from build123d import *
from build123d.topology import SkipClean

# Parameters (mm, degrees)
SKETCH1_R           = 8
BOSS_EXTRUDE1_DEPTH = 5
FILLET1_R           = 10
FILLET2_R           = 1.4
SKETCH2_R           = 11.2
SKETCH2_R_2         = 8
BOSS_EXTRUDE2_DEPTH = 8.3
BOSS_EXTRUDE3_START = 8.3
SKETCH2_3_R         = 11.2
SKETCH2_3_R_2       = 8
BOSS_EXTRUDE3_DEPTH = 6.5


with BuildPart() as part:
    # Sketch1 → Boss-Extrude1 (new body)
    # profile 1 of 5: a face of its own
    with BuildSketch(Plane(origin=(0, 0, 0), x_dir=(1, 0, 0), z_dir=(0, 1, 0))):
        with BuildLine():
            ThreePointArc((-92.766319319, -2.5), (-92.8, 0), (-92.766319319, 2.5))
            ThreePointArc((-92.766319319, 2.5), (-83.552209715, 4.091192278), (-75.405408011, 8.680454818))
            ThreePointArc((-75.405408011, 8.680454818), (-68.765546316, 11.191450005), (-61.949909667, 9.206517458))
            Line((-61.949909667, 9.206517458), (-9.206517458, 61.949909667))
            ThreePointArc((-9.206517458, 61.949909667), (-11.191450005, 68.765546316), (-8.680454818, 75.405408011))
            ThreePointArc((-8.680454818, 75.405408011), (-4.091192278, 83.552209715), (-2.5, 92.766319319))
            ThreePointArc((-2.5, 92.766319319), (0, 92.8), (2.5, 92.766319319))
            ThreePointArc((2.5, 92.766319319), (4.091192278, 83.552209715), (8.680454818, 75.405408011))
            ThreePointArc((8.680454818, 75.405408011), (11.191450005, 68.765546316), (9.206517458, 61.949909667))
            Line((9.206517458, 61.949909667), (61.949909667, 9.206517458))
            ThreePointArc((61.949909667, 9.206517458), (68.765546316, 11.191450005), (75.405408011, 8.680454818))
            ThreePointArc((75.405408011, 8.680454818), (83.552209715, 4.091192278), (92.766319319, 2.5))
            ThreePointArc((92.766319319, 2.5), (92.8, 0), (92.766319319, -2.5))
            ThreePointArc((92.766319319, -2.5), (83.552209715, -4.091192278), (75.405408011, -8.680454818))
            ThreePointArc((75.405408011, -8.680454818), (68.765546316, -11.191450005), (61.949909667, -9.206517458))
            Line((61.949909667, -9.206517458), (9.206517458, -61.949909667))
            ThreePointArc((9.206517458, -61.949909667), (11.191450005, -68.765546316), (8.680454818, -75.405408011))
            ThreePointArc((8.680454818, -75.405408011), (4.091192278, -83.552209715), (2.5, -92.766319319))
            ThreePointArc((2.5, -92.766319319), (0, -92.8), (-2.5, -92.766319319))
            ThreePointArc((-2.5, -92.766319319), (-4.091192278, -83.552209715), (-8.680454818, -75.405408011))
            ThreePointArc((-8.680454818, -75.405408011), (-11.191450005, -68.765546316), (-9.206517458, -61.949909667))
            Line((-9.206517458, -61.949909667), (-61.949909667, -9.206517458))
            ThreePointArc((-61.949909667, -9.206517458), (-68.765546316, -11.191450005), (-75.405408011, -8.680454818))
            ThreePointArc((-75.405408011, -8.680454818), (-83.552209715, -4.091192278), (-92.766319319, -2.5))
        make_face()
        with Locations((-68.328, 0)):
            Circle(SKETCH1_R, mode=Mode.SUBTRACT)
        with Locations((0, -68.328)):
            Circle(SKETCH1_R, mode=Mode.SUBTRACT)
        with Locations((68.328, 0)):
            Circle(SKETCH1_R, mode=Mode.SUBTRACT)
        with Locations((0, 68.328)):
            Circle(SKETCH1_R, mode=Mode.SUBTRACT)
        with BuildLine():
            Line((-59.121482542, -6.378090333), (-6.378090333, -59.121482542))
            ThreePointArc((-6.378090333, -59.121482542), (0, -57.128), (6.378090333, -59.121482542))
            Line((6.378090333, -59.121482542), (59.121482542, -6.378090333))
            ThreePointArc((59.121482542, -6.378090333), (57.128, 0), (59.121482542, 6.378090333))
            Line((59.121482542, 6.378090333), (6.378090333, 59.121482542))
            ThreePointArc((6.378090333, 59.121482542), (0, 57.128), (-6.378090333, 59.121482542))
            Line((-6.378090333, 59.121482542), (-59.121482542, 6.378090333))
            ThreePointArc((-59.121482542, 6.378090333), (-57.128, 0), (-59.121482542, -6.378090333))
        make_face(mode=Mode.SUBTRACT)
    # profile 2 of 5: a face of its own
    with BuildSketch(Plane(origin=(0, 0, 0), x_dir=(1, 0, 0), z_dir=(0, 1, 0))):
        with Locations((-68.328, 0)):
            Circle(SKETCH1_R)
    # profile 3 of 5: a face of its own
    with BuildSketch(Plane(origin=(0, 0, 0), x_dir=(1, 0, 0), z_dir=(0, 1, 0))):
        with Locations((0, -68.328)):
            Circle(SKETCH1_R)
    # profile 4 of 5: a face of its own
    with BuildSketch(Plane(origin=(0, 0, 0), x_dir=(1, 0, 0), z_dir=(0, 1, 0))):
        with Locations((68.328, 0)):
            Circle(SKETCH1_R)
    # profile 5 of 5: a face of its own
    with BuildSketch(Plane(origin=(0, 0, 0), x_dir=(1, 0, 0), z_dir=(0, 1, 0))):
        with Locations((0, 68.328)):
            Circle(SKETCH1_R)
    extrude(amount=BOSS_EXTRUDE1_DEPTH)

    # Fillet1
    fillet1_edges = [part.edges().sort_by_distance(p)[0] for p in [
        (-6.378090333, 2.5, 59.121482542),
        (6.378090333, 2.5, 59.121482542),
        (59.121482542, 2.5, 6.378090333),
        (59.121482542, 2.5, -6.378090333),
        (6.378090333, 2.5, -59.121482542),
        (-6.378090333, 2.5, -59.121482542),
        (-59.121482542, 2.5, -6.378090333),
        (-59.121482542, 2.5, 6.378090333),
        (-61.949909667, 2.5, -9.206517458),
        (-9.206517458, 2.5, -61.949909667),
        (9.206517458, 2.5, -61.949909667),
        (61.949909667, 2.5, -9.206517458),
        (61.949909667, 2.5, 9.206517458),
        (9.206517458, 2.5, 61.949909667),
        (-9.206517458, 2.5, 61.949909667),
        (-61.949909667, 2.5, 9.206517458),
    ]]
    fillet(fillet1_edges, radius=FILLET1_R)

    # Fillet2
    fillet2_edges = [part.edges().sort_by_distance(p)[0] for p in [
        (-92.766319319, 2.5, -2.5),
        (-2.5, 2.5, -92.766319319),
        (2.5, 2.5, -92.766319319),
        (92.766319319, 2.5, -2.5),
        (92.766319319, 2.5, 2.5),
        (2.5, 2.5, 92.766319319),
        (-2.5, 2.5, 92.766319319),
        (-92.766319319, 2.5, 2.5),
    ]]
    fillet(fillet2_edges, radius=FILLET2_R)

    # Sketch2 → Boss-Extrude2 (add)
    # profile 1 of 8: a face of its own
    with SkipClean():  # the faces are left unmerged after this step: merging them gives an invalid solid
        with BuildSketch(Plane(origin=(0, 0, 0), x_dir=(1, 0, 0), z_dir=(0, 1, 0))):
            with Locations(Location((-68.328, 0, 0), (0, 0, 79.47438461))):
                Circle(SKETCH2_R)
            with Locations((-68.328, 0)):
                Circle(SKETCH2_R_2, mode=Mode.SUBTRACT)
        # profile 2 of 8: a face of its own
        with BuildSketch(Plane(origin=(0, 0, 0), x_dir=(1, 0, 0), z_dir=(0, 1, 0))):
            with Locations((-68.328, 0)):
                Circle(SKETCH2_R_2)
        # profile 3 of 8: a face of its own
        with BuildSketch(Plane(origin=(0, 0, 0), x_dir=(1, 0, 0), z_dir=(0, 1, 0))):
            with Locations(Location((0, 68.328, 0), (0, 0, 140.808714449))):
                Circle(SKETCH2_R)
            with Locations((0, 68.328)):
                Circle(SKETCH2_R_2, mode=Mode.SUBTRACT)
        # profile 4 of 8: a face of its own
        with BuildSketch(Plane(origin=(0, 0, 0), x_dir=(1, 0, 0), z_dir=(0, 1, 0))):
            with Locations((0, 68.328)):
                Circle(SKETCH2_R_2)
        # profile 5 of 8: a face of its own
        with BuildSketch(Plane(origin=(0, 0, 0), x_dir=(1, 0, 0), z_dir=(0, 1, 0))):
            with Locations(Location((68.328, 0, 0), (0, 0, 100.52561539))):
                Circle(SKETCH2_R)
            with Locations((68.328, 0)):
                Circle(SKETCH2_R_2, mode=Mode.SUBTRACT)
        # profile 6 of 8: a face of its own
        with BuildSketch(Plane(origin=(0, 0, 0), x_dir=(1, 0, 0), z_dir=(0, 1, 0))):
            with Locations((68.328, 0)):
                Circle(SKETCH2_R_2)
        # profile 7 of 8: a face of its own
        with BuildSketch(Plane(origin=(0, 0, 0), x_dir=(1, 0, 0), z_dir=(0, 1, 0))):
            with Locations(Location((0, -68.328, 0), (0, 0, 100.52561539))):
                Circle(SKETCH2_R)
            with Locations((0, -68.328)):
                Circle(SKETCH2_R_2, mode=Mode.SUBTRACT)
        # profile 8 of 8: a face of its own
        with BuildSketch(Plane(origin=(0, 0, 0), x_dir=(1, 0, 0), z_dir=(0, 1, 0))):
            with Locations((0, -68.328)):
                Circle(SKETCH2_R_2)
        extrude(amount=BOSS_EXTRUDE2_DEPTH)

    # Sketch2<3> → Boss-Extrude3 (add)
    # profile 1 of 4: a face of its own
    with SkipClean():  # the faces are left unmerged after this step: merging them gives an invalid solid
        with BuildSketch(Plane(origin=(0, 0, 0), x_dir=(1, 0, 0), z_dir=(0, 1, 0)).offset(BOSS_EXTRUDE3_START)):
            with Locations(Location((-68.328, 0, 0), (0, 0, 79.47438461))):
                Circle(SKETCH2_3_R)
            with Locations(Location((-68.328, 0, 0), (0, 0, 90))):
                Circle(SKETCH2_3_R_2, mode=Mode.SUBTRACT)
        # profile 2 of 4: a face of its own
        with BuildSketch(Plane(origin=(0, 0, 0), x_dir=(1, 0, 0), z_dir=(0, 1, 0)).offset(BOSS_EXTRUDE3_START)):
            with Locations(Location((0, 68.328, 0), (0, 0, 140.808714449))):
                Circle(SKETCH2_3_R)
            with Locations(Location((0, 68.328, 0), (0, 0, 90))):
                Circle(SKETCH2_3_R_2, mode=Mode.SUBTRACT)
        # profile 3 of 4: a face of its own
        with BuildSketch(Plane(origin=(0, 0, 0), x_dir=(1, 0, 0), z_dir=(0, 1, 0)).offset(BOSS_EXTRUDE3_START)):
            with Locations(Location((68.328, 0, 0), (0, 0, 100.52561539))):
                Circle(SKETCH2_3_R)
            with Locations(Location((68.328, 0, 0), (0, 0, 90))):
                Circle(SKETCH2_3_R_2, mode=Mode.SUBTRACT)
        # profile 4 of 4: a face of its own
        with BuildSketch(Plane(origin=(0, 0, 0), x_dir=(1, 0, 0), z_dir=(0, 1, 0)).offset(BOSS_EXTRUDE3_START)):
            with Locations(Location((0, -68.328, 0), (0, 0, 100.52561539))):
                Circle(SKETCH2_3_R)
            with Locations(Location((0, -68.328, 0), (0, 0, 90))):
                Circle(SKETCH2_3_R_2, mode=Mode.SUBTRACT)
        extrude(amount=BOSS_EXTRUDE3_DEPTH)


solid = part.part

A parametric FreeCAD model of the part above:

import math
import FreeCAD as App
import Part
import Sketcher
from FreeCAD import Vector


def edges_at(feature, points):
    """Names of the edges that pass closest to the given points."""
    edges = feature.Shape.Edges
    near = lambda p: min(range(len(edges)), key=lambda i: edges[i].distToShape(Part.Vertex(*p))[0])
    return sorted({f"Edge{near(p) + 1}" for p in points})

doc = App.newDocument("Part")
body = doc.addObject("PartDesign::Body", "Body")

sketch1 = body.newObject("Sketcher::SketchObject", "Sketch")
sketch1.AttachmentSupport = (doc.getObject("XZ_Plane"), [""])
sketch1.MapMode = "FlatFace"
sketch1.addGeometry(Part.ArcOfCircle(Part.Circle(Vector(0, 0, 0), Vector(0, 0, 1), 93), math.radians(178.46), math.radians(181.54)), False)
sketch1.addGeometry(Part.ArcOfCircle(Part.Circle(Vector(-93, 30, 0), Vector(0, 0, 1), 27), math.radians(-90), math.radians(-51)), False)
sketch1.addGeometry(Part.ArcOfCircle(Part.Circle(Vector(-68, 0, 0), Vector(0, 0, 1), 11), math.radians(55), math.radians(129)), False)
sketch1.addGeometry(Part.LineSegment(Vector(-62, 9, 0), Vector(-9, 62, 0)), False)
sketch1.addGeometry(Part.ArcOfCircle(Part.Circle(Vector(0, 68, 0), Vector(0, 0, 1), 11), math.radians(141), math.radians(215)), False)
sketch1.addGeometry(Part.ArcOfCircle(Part.Circle(Vector(-30, 93, 0), Vector(0, 0, 1), 27), math.radians(-39), math.radians(0)), False)
sketch1.addGeometry(Part.ArcOfCircle(Part.Circle(Vector(0, 0, 0), Vector(0, 0, 1), 93), math.radians(88.46), math.radians(91.54)), False)
sketch1.addGeometry(Part.ArcOfCircle(Part.Circle(Vector(30, 93, 0), Vector(0, 0, 1), 27), math.radians(-180), math.radians(-141)), False)
sketch1.addGeometry(Part.ArcOfCircle(Part.Circle(Vector(0, 68, 0), Vector(0, 0, 1), 11), math.radians(-35), math.radians(39)), False)
sketch1.addGeometry(Part.LineSegment(Vector(9, 62, 0), Vector(62, 9, 0)), False)
sketch1.addGeometry(Part.ArcOfCircle(Part.Circle(Vector(68, 0, 0), Vector(0, 0, 1), 11), math.radians(51), math.radians(125)), False)
sketch1.addGeometry(Part.ArcOfCircle(Part.Circle(Vector(93, 30, 0), Vector(0, 0, 1), 27), math.radians(-129), math.radians(-90)), False)
sketch1.addGeometry(Part.ArcOfCircle(Part.Circle(Vector(0, 0, 0), Vector(0, 0, 1), 93), math.radians(-1.54), math.radians(1.54)), False)
sketch1.addGeometry(Part.ArcOfCircle(Part.Circle(Vector(93, -30, 0), Vector(0, 0, 1), 27), math.radians(90), math.radians(129)), False)
sketch1.addGeometry(Part.ArcOfCircle(Part.Circle(Vector(68, 0, 0), Vector(0, 0, 1), 11), math.radians(-125), math.radians(-51)), False)
sketch1.addGeometry(Part.LineSegment(Vector(62, -9, 0), Vector(9, -62, 0)), False)
sketch1.addGeometry(Part.ArcOfCircle(Part.Circle(Vector(0, -68, 0), Vector(0, 0, 1), 11), math.radians(-39), math.radians(35)), False)
sketch1.addGeometry(Part.ArcOfCircle(Part.Circle(Vector(30, -93, 0), Vector(0, 0, 1), 27), math.radians(141), math.radians(180)), False)
sketch1.addGeometry(Part.ArcOfCircle(Part.Circle(Vector(0, 0, 0), Vector(0, 0, 1), 93), math.radians(-91.54), math.radians(-88.46)), False)
sketch1.addGeometry(Part.ArcOfCircle(Part.Circle(Vector(-30, -93, 0), Vector(0, 0, 1), 27), math.radians(0), math.radians(39)), False)
sketch1.addGeometry(Part.ArcOfCircle(Part.Circle(Vector(0, -68, 0), Vector(0, 0, 1), 11), math.radians(145), math.radians(219)), False)
sketch1.addGeometry(Part.LineSegment(Vector(-9, -62, 0), Vector(-62, -9, 0)), False)
sketch1.addGeometry(Part.ArcOfCircle(Part.Circle(Vector(-68, 0, 0), Vector(0, 0, 1), 11), math.radians(-129), math.radians(-55)), False)
sketch1.addGeometry(Part.ArcOfCircle(Part.Circle(Vector(-93, -30, 0), Vector(0, 0, 1), 27), math.radians(51), math.radians(90)), False)
sketch1.addGeometry(Part.ArcOfCircle(Part.Circle(Vector(-68, 0, 0), Vector(0, 0, 1), 11), math.radians(-35), math.radians(35)), False)
sketch1.addGeometry(Part.LineSegment(Vector(-59, -6, 0), Vector(-6, -59, 0)), False)
sketch1.addGeometry(Part.ArcOfCircle(Part.Circle(Vector(0, -68, 0), Vector(0, 0, 1), 11), math.radians(55), math.radians(125)), False)
sketch1.addGeometry(Part.LineSegment(Vector(6, -59, 0), Vector(59, -6, 0)), False)
sketch1.addGeometry(Part.ArcOfCircle(Part.Circle(Vector(68, 0, 0), Vector(0, 0, 1), 11), math.radians(145), math.radians(215)), False)
sketch1.addGeometry(Part.LineSegment(Vector(59, 6, 0), Vector(6, 59, 0)), False)
sketch1.addGeometry(Part.ArcOfCircle(Part.Circle(Vector(0, 68, 0), Vector(0, 0, 1), 11), math.radians(-125), math.radians(-55)), False)
sketch1.addGeometry(Part.LineSegment(Vector(-6, 59, 0), Vector(-59, 6, 0)), False)
sketch1.addConstraint(Sketcher.Constraint("Coincident", 0, 1, 1, 1))
sketch1.addConstraint(Sketcher.Constraint("Tangent", 1, 2, 2, 2))
sketch1.addConstraint(Sketcher.Constraint("Coincident", 2, 1, 3, 1))
sketch1.addConstraint(Sketcher.Constraint("Coincident", 3, 2, 4, 2))
sketch1.addConstraint(Sketcher.Constraint("Tangent", 4, 1, 5, 1))
sketch1.addConstraint(Sketcher.Constraint("Coincident", 5, 2, 6, 2))
sketch1.addConstraint(Sketcher.Constraint("Coincident", 6, 1, 7, 1))
sketch1.addConstraint(Sketcher.Constraint("Tangent", 7, 2, 8, 2))
sketch1.addConstraint(Sketcher.Constraint("Coincident", 8, 1, 9, 1))
sketch1.addConstraint(Sketcher.Constraint("Coincident", 9, 2, 10, 2))
sketch1.addConstraint(Sketcher.Constraint("Tangent", 10, 1, 11, 1))
sketch1.addConstraint(Sketcher.Constraint("Coincident", 11, 2, 12, 2))
sketch1.addConstraint(Sketcher.Constraint("Coincident", 12, 1, 13, 1))
sketch1.addConstraint(Sketcher.Constraint("Tangent", 13, 2, 14, 2))
sketch1.addConstraint(Sketcher.Constraint("Coincident", 14, 1, 15, 1))
sketch1.addConstraint(Sketcher.Constraint("Coincident", 15, 2, 16, 2))
sketch1.addConstraint(Sketcher.Constraint("Tangent", 16, 1, 17, 1))
sketch1.addConstraint(Sketcher.Constraint("Coincident", 17, 2, 18, 2))
sketch1.addConstraint(Sketcher.Constraint("Coincident", 18, 1, 19, 1))
sketch1.addConstraint(Sketcher.Constraint("Tangent", 19, 2, 20, 2))
sketch1.addConstraint(Sketcher.Constraint("Coincident", 20, 1, 21, 1))
sketch1.addConstraint(Sketcher.Constraint("Coincident", 21, 2, 22, 2))
sketch1.addConstraint(Sketcher.Constraint("Tangent", 22, 1, 23, 1))
sketch1.addConstraint(Sketcher.Constraint("Coincident", 23, 2, 0, 2))
sketch1.addConstraint(Sketcher.Constraint("Coincident", 24, 1, 25, 1))
sketch1.addConstraint(Sketcher.Constraint("Coincident", 25, 2, 26, 2))
sketch1.addConstraint(Sketcher.Constraint("Coincident", 26, 1, 27, 1))
sketch1.addConstraint(Sketcher.Constraint("Coincident", 27, 2, 28, 2))
sketch1.addConstraint(Sketcher.Constraint("Coincident", 28, 1, 29, 1))
sketch1.addConstraint(Sketcher.Constraint("Coincident", 29, 2, 30, 2))
sketch1.addConstraint(Sketcher.Constraint("Coincident", 30, 1, 31, 1))
sketch1.addConstraint(Sketcher.Constraint("Coincident", 31, 2, 24, 2))
sketch1.addConstraint(Sketcher.Constraint("Coincident", 0, 3, -1, 1))
sketch1.addConstraint(Sketcher.Constraint("Coincident", 6, 3, -1, 1))
sketch1.addConstraint(Sketcher.Constraint("Coincident", 12, 3, -1, 1))
sketch1.addConstraint(Sketcher.Constraint("Coincident", 18, 3, -1, 1))
sketch1.addConstraint(Sketcher.Constraint("Coincident", 8, 3, 4, 3))
sketch1.addConstraint(Sketcher.Constraint("Coincident", 14, 3, 10, 3))
sketch1.addConstraint(Sketcher.Constraint("Coincident", 20, 3, 16, 3))
sketch1.addConstraint(Sketcher.Constraint("Coincident", 22, 3, 2, 3))
sketch1.addConstraint(Sketcher.Constraint("Coincident", 24, 3, 2, 3))
sketch1.addConstraint(Sketcher.Constraint("Coincident", 26, 3, 16, 3))
sketch1.addConstraint(Sketcher.Constraint("Coincident", 28, 3, 10, 3))
sketch1.addConstraint(Sketcher.Constraint("Coincident", 30, 3, 4, 3))
sketch1.addConstraint(Sketcher.Constraint("Equal", 2, 4))
sketch1.addConstraint(Sketcher.Constraint("Equal", 1, 5))
sketch1.addConstraint(Sketcher.Constraint("Equal", 0, 6))
sketch1.addConstraint(Sketcher.Constraint("Equal", 5, 7))
sketch1.addConstraint(Sketcher.Constraint("Equal", 4, 8))
sketch1.addConstraint(Sketcher.Constraint("Equal", 8, 10))
sketch1.addConstraint(Sketcher.Constraint("Equal", 7, 11))
sketch1.addConstraint(Sketcher.Constraint("Equal", 6, 12))
sketch1.addConstraint(Sketcher.Constraint("Equal", 11, 13))
sketch1.addConstraint(Sketcher.Constraint("Equal", 10, 14))
sketch1.addConstraint(Sketcher.Constraint("Equal", 14, 16))
sketch1.addConstraint(Sketcher.Constraint("Equal", 13, 17))
sketch1.addConstraint(Sketcher.Constraint("Equal", 12, 18))
sketch1.addConstraint(Sketcher.Constraint("Equal", 17, 19))
sketch1.addConstraint(Sketcher.Constraint("Equal", 16, 20))
sketch1.addConstraint(Sketcher.Constraint("Equal", 20, 22))
sketch1.addConstraint(Sketcher.Constraint("Equal", 19, 23))
sketch1.addConstraint(Sketcher.Constraint("Equal", 22, 24))
sketch1.addConstraint(Sketcher.Constraint("Equal", 24, 26))
sketch1.addConstraint(Sketcher.Constraint("Equal", 26, 28))
sketch1.addConstraint(Sketcher.Constraint("Equal", 28, 30))
sketch1.addConstraint(Sketcher.Constraint("Symmetric", 2, 3, 10, 3, -1, 1))
sketch1.addConstraint(Sketcher.Constraint("Symmetric", 4, 3, 16, 3, -1, 1))
sketch1.addConstraint(Sketcher.Constraint("Symmetric", 5, 3, 7, 3, -2))
sketch1.addConstraint(Sketcher.Constraint("Symmetric", 1, 3, 11, 3, -2))
sketch1.addConstraint(Sketcher.Constraint("Perpendicular", 3, 9))
sketch1.addConstraint(Sketcher.Constraint("Perpendicular", 9, 15))
sketch1.addConstraint(Sketcher.Constraint("Perpendicular", 15, 21))
sketch1.addConstraint(Sketcher.Constraint("Parallel", 21, 25))
sketch1.addConstraint(Sketcher.Constraint("Perpendicular", 25, 27))
sketch1.addConstraint(Sketcher.Constraint("Perpendicular", 27, 29))
sketch1.addConstraint(Sketcher.Constraint("Perpendicular", 29, 31))
sketch1.addConstraint(Sketcher.Constraint("Horizontal", 17, 3, 19, 3))
sketch1.addConstraint(Sketcher.Constraint("Horizontal", 13, 3, 23, 3))
sketch1.addConstraint(Sketcher.Constraint("Horizontal", 7, 3, 5, 2))
sketch1.addConstraint(Sketcher.Constraint("Horizontal", 3, 2, 8, 1))
sketch1.addConstraint(Sketcher.Constraint("Horizontal", 2, 1, 9, 2))
sketch1.addConstraint(Sketcher.Constraint("Horizontal", 19, 3, 17, 2))
sketch1.addConstraint(Sketcher.Constraint("Horizontal", 15, 2, 20, 1))
sketch1.addConstraint(Sketcher.Constraint("Horizontal", 25, 2, 26, 1))
sketch1.addConstraint(Sketcher.Constraint("Horizontal", 29, 2, 30, 1))
sketch1.addConstraint(Sketcher.Constraint("Vertical", 11, 3, 13, 3))
sketch1.addConstraint(Sketcher.Constraint("Vertical", 23, 3, 0, 1))
sketch1.addConstraint(Sketcher.Constraint("Vertical", 9, 2, 14, 1))
sketch1.addConstraint(Sketcher.Constraint("Vertical", 27, 2, 28, 1))
sketch1.addConstraint(Sketcher.Constraint("Equal", 21, 25))
sketch1.addConstraint(Sketcher.Constraint("Radius", 0, 92.8))
sketch1.addConstraint(Sketcher.Constraint("Radius", 2, 11.2))
sketch1.addConstraint(Sketcher.Constraint("DistanceX", 5, 2, 6, 1, 5.0))
sketch1.addConstraint(Sketcher.Constraint("DistanceY", 12, 1, 11, 2, 5.0))
sketch1.addConstraint(Sketcher.Constraint("DistanceX", 2, 3, -1, 1, 68.328))
sketch1.addConstraint(Sketcher.Constraint("DistanceX", 1, 2, 2, 1, 13.455498))
pad1 = body.newObject("PartDesign::Pad", "Pad")
pad1.Profile = sketch1
pad1.Length = 5
pad1.Reversed = True
doc.recompute()

fillet = body.newObject("PartDesign::Fillet", "Fillet")
fillet.Base = (pad1, edges_at(pad1, [
    (-6.378, 2.5, 59.121),
    (6.378, 2.5, 59.121),
    (59.121, 2.5, 6.378),
    (59.121, 2.5, -6.378),
    (6.378, 2.5, -59.121),
    (-6.378, 2.5, -59.121),
    (-59.121, 2.5, -6.378),
    (-59.121, 2.5, 6.378),
    (-61.95, 2.5, -9.207),
    (-9.207, 2.5, -61.95),
    (9.207, 2.5, -61.95),
    (61.95, 2.5, -9.207),
    (61.95, 2.5, 9.207),
    (9.207, 2.5, 61.95),
    (-9.207, 2.5, 61.95),
    (-61.95, 2.5, 9.207),
]))
fillet.Radius = 10
doc.recompute()

fillet2 = body.newObject("PartDesign::Fillet", "Fillet001")
fillet2.Base = (fillet, edges_at(fillet, [
    (-92.766, 2.5, -2.5),
    (-2.5, 2.5, -92.766),
    (2.5, 2.5, -92.766),
    (92.766, 2.5, -2.5),
    (92.766, 2.5, 2.5),
    (2.5, 2.5, 92.766),
    (-2.5, 2.5, 92.766),
    (-92.766, 2.5, 2.5),
]))
fillet2.Radius = 1.4

sketch2 = body.newObject("Sketcher::SketchObject", "Sketch001")
sketch2.AttachmentSupport = (doc.getObject("XZ_Plane"), [""])
sketch2.MapMode = "FlatFace"
sketch2.addGeometry(Part.Circle(Vector(-68, 0, 0), Vector(0, 0, 1), 11), False)
sketch2.addGeometry(Part.Circle(Vector(0, -68, 0), Vector(0, 0, 1), 11), False)
sketch2.addGeometry(Part.Circle(Vector(68, 0, 0), Vector(0, 0, 1), 11), False)
sketch2.addGeometry(Part.Circle(Vector(0, 68, 0), Vector(0, 0, 1), 11), False)
sketch2.addConstraint(Sketcher.Constraint("Equal", 0, 1))
sketch2.addConstraint(Sketcher.Constraint("Equal", 1, 2))
sketch2.addConstraint(Sketcher.Constraint("Equal", 2, 3))
sketch2.addConstraint(Sketcher.Constraint("Symmetric", 0, 3, 2, 3, -1, 1))
sketch2.addConstraint(Sketcher.Constraint("Symmetric", 1, 3, 3, 3, -1, 1))
sketch2.addConstraint(Sketcher.Constraint("PointOnObject", 0, 3, -1))
sketch2.addConstraint(Sketcher.Constraint("PointOnObject", 1, 3, -2))
sketch2.addConstraint(Sketcher.Constraint("Diameter", 0, 22.4))
sketch2.addConstraint(Sketcher.Constraint("DistanceX", 0, 3, -1, 1, 68.328))
sketch2.addConstraint(Sketcher.Constraint("DistanceY", 1, 3, -1, 1, 68.328))
pad2 = body.newObject("PartDesign::Pad", "Pad001")
pad2.Profile = sketch2
pad2.Length = 8.3
pad2.Reversed = True

sketch3 = body.newObject("Sketcher::SketchObject", "Sketch002")
sketch3.AttachmentSupport = (doc.getObject("XZ_Plane"), [""])
sketch3.MapMode = "FlatFace"
sketch3.AttachmentOffset = App.Placement(Vector(0, 0, -8.3), App.Rotation())
sketch3.addGeometry(Part.Circle(Vector(-68, 0, 0), Vector(0, 0, 1), 11), False)
sketch3.addGeometry(Part.Circle(Vector(-68, 0, 0), Vector(0, 0, 1), 8), False)
sketch3.addGeometry(Part.Circle(Vector(0, -68, 0), Vector(0, 0, 1), 11), False)
sketch3.addGeometry(Part.Circle(Vector(0, -68, 0), Vector(0, 0, 1), 8), False)
sketch3.addGeometry(Part.Circle(Vector(68, 0, 0), Vector(0, 0, 1), 11), False)
sketch3.addGeometry(Part.Circle(Vector(68, 0, 0), Vector(0, 0, 1), 8), False)
sketch3.addGeometry(Part.Circle(Vector(0, 68, 0), Vector(0, 0, 1), 11), False)
sketch3.addGeometry(Part.Circle(Vector(0, 68, 0), Vector(0, 0, 1), 8), False)
sketch3.addConstraint(Sketcher.Constraint("Coincident", 1, 3, 0, 3))
sketch3.addConstraint(Sketcher.Constraint("Coincident", 3, 3, 2, 3))
sketch3.addConstraint(Sketcher.Constraint("Coincident", 5, 3, 4, 3))
sketch3.addConstraint(Sketcher.Constraint("Coincident", 7, 3, 6, 3))
sketch3.addConstraint(Sketcher.Constraint("Equal", 0, 2))
sketch3.addConstraint(Sketcher.Constraint("Equal", 1, 3))
sketch3.addConstraint(Sketcher.Constraint("Equal", 2, 4))
sketch3.addConstraint(Sketcher.Constraint("Equal", 3, 5))
sketch3.addConstraint(Sketcher.Constraint("Equal", 4, 6))
sketch3.addConstraint(Sketcher.Constraint("Equal", 5, 7))
sketch3.addConstraint(Sketcher.Constraint("Symmetric", 0, 3, 4, 3, -1, 1))
sketch3.addConstraint(Sketcher.Constraint("Symmetric", 2, 3, 6, 3, -1, 1))
sketch3.addConstraint(Sketcher.Constraint("PointOnObject", 0, 3, -1))
sketch3.addConstraint(Sketcher.Constraint("PointOnObject", 2, 3, -2))
sketch3.addConstraint(Sketcher.Constraint("Diameter", 1, 16.0))
sketch3.addConstraint(Sketcher.Constraint("Diameter", 0, 22.4))
sketch3.addConstraint(Sketcher.Constraint("DistanceX", 0, 3, -1, 1, 68.328))
sketch3.addConstraint(Sketcher.Constraint("DistanceY", 2, 3, -1, 1, 68.328))
pad3 = body.newObject("PartDesign::Pad", "Pad002")
pad3.Profile = sketch3
pad3.Length = 6.5
pad3.Reversed = True

doc.recompute()
